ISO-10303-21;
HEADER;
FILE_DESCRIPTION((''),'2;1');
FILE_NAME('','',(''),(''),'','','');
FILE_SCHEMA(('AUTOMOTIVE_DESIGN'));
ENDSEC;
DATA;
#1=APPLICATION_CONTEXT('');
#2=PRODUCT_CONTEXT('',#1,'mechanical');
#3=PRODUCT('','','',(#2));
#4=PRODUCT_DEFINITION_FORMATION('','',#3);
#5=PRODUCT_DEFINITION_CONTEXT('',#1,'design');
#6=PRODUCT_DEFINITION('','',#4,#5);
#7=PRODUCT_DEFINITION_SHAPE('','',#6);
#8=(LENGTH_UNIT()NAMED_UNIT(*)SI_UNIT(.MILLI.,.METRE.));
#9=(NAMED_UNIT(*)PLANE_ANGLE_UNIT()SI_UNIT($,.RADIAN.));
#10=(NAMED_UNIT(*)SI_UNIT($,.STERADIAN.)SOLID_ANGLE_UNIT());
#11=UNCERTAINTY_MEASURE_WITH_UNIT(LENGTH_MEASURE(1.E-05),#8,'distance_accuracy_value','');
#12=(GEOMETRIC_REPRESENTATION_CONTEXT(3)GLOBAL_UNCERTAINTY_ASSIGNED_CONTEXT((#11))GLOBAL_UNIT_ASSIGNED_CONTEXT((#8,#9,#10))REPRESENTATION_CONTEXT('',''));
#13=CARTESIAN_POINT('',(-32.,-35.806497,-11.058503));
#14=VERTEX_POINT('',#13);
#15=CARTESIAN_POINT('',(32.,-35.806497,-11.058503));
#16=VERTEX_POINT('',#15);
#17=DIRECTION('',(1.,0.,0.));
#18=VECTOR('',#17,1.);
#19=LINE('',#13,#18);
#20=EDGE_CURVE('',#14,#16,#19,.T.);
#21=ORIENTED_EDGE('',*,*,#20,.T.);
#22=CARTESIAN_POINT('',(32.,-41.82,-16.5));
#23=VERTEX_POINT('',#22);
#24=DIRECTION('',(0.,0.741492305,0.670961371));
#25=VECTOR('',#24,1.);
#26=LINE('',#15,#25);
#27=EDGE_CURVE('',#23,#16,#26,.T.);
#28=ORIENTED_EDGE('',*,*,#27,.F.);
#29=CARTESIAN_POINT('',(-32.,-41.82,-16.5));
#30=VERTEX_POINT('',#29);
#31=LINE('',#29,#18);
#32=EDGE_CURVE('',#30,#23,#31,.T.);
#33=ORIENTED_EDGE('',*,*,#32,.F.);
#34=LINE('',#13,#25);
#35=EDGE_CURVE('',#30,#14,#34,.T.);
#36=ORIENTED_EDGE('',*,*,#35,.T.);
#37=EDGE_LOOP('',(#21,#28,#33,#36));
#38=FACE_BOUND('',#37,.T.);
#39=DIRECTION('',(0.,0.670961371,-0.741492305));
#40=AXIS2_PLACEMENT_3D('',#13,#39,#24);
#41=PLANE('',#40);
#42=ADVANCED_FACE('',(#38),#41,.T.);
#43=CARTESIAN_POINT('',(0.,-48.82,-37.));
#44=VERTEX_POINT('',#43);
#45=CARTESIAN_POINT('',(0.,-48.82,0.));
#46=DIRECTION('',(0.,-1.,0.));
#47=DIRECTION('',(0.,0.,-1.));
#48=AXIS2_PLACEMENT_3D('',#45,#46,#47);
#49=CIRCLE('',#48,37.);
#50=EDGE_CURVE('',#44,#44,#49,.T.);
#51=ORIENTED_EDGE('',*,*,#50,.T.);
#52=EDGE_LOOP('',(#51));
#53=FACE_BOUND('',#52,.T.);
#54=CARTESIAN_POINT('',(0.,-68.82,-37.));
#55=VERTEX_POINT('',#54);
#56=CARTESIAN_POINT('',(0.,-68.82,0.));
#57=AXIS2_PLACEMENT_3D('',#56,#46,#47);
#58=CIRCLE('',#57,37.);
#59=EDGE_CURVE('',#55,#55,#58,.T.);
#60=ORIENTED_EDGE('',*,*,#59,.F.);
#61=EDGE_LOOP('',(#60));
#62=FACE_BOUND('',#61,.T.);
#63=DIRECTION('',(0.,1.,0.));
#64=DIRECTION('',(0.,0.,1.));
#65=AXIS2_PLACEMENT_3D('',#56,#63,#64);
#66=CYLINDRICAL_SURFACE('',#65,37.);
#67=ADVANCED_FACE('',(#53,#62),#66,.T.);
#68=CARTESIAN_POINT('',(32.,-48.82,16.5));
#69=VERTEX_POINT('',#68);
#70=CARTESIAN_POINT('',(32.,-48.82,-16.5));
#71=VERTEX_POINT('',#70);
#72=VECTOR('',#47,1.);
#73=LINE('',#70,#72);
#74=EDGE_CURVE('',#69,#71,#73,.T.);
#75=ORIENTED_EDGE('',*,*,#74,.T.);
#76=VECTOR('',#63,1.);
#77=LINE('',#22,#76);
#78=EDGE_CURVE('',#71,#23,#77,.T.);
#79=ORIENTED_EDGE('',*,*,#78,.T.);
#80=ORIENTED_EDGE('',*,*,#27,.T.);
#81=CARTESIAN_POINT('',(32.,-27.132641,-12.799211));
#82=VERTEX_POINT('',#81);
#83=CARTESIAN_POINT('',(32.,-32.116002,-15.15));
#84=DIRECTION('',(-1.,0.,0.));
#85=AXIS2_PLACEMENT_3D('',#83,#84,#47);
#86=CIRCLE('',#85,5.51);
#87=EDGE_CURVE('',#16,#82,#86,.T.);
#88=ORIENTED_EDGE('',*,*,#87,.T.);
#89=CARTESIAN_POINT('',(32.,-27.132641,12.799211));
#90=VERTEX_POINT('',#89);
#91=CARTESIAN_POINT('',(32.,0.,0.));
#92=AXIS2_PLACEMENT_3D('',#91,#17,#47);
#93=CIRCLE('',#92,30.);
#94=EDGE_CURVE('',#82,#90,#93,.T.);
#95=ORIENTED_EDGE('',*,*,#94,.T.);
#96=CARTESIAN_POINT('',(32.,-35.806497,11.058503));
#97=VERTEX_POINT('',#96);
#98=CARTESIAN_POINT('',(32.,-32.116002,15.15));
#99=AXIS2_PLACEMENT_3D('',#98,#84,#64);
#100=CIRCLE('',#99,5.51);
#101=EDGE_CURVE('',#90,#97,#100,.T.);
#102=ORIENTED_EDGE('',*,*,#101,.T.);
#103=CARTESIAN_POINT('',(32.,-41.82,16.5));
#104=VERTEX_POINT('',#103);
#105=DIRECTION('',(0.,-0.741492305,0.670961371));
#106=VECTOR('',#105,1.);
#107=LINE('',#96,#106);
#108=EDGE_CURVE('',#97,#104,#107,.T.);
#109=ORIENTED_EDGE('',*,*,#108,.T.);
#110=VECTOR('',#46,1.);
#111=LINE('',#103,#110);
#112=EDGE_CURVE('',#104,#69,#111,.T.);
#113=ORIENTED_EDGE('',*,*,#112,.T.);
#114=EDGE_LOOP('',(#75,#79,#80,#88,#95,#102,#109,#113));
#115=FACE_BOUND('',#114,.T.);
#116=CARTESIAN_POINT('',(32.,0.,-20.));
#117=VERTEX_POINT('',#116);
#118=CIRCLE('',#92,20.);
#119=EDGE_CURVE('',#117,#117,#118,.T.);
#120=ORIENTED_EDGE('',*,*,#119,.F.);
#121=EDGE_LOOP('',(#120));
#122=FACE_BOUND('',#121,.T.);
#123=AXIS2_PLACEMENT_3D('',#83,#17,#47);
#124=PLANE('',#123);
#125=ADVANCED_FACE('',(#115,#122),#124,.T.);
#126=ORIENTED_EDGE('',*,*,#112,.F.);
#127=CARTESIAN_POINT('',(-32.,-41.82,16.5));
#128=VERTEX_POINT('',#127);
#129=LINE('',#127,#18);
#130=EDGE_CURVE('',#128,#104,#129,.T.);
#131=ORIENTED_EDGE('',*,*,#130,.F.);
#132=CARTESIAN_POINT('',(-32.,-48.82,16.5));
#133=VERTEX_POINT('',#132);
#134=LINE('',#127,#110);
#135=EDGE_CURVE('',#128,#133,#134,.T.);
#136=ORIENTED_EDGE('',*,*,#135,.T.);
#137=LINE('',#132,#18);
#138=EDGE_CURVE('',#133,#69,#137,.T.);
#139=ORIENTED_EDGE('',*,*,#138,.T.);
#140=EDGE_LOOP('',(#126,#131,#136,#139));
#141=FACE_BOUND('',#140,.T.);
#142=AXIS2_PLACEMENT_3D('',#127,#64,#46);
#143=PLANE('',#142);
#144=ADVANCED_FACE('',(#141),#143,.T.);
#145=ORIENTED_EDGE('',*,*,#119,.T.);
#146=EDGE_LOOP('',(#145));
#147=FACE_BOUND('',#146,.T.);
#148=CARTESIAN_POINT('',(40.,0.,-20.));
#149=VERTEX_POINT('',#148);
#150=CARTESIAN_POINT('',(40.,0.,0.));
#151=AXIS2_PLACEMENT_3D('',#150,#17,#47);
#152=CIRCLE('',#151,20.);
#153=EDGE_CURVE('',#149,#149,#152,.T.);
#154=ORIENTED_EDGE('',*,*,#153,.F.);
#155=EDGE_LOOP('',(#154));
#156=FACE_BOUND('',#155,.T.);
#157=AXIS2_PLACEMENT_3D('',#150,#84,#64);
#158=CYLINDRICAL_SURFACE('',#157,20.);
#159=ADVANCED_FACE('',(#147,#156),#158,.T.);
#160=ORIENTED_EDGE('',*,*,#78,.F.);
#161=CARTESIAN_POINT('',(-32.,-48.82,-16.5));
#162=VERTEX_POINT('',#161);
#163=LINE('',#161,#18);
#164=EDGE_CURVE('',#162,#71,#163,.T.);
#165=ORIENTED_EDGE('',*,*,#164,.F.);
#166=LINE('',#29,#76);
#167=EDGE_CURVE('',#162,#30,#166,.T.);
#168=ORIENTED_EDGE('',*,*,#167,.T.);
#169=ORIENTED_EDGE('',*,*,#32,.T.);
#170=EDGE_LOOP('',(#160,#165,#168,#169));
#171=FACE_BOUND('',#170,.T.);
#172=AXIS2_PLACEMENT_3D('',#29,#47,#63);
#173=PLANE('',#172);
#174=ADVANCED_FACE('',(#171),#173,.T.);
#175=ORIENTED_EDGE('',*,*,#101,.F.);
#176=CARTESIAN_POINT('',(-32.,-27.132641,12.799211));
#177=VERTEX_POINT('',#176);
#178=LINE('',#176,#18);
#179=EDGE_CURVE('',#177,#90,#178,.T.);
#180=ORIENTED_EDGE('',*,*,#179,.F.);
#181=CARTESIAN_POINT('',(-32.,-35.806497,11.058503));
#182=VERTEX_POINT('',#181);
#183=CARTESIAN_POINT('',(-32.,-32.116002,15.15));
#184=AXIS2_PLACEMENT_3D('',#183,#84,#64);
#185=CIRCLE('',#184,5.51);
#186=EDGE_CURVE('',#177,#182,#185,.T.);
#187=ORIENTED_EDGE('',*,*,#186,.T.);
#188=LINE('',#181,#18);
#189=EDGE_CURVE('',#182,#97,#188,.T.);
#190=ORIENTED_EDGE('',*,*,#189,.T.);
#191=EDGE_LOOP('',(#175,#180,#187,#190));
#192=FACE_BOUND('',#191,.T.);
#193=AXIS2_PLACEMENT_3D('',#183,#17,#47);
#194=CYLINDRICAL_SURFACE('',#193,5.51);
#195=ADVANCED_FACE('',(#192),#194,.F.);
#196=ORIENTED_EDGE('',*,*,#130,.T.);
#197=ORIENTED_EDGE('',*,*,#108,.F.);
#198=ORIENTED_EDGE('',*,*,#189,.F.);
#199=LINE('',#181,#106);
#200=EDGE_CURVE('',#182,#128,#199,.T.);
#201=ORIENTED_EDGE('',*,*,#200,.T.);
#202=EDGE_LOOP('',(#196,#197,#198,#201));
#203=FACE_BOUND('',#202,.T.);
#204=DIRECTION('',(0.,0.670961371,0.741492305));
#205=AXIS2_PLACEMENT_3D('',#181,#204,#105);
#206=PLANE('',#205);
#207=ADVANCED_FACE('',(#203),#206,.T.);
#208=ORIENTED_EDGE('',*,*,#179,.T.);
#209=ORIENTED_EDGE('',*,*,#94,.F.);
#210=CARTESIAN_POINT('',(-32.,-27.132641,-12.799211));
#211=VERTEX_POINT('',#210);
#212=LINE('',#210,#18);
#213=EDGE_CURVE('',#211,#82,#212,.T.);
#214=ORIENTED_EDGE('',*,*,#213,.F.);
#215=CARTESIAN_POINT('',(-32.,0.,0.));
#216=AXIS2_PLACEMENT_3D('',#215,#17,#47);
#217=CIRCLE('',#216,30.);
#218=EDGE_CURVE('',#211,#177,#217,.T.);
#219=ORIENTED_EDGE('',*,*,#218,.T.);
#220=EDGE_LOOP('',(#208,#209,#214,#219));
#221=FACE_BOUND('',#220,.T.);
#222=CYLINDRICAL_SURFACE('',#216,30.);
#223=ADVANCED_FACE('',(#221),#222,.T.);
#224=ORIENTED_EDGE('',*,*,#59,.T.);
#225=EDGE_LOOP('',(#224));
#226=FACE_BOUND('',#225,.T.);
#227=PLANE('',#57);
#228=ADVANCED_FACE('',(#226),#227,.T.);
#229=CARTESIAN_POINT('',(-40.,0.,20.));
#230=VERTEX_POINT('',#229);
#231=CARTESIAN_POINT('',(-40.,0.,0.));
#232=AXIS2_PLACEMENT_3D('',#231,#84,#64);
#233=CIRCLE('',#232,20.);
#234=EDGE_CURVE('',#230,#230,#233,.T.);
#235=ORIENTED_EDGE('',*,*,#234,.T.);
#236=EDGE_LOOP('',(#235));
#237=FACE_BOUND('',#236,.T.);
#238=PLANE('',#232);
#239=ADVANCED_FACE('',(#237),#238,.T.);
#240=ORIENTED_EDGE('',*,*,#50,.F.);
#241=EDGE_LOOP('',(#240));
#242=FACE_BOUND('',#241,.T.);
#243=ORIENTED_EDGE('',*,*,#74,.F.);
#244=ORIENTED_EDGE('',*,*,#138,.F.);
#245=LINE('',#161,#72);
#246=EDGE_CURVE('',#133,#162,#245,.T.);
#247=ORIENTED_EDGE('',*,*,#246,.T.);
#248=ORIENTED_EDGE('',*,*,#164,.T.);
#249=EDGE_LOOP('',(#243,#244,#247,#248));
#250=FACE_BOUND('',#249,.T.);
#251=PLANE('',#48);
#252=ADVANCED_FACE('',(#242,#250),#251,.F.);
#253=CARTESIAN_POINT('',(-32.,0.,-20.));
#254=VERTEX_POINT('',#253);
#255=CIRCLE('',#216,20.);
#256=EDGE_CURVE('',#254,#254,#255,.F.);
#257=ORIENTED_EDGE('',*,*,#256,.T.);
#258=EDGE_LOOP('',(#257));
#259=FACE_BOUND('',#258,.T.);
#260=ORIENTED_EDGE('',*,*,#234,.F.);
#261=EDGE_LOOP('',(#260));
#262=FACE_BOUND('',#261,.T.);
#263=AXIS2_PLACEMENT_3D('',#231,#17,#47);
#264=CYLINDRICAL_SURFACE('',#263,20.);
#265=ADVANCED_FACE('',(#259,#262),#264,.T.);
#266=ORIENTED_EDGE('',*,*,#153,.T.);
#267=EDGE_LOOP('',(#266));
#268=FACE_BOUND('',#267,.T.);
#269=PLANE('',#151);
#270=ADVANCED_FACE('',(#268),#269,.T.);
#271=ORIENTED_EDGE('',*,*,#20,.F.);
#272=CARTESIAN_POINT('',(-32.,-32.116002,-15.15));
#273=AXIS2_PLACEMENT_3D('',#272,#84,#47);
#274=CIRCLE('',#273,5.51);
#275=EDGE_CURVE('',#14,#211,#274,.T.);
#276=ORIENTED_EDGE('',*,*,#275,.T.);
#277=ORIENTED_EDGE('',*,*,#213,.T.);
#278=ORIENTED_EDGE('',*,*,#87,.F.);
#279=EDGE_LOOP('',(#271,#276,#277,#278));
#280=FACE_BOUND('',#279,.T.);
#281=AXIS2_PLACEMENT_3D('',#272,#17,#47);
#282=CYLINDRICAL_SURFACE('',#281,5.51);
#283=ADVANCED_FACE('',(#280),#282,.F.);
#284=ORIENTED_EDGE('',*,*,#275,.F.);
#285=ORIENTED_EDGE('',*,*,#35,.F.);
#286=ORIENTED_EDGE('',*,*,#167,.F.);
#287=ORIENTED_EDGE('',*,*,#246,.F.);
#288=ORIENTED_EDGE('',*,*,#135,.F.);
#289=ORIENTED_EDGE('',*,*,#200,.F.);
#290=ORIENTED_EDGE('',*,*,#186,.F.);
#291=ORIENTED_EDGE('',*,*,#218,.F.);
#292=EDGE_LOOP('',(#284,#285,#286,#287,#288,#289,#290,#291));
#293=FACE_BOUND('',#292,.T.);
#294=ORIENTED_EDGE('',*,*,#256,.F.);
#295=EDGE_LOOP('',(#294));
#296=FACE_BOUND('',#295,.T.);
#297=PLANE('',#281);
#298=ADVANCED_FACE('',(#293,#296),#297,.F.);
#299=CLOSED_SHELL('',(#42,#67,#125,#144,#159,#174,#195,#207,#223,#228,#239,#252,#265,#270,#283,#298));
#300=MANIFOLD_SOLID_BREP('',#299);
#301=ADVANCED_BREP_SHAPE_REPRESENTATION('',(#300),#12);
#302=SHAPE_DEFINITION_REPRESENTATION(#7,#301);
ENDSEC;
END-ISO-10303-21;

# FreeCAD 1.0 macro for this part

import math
import FreeCAD as App
import Part
import Sketcher

V = App.Vector
Q = App.Units.Quantity

doc = App.newDocument("Part")
body = doc.addObject("PartDesign::Body", "Body")

# Sketch on YZ plane
sketch1 = body.newObject("Sketcher::SketchObject", "Sketch")
sketch1.AttachmentSupport = (doc.getObject("YZ_Plane"), [""])
sketch1.MapMode = "FlatFace"
sketch1.addGeometry([
    Part.LineSegment(V(-36, 11, 0), V(-42, 16, 0)),  # 0
    Part.LineSegment(V(-42, 16, 0), V(-49, 16, 0)),  # 1
    Part.LineSegment(V(-49, 16, 0), V(-49, -16, 0)),  # 2
    Part.LineSegment(V(-49, -16, 0), V(-42, -16, 0)),  # 3
    Part.LineSegment(V(-42, -16, 0), V(-36, -11, 0)),  # 4
    Part.ArcOfCircle(Part.Circle(V(-32, -15, 0), V(0, 0, 1), 6), math.radians(25), math.radians(132)),  # 5
    Part.ArcOfCircle(Part.Circle(V(0, 0, 0), V(0, 0, 1), 30), math.radians(-155), math.radians(155)),  # 6
    Part.ArcOfCircle(Part.Circle(V(-32, 15, 0), V(0, 0, 1), 6), math.radians(-132), math.radians(-25)),  # 7
], False)
sketch1.addConstraint([
    Sketcher.Constraint("Coincident", 0, 2, 1, 1),
    Sketcher.Constraint("Coincident", 1, 2, 2, 1),
    Sketcher.Constraint("Coincident", 2, 2, 3, 1),
    Sketcher.Constraint("Coincident", 3, 2, 4, 1),
    Sketcher.Constraint("Coincident", 4, 2, 5, 2),
    Sketcher.Constraint("Tangent", 5, 1, 6, 1),
    Sketcher.Constraint("Tangent", 6, 2, 7, 2),
    Sketcher.Constraint("Coincident", 7, 1, 0, 1),
    Sketcher.Constraint("Horizontal", 1),
    Sketcher.Constraint("Vertical", 2),
    Sketcher.Constraint("Horizontal", 3),
    Sketcher.Constraint("Coincident", 6, 3, -1, 1),
    Sketcher.Constraint("Equal", 5, 7),
    Sketcher.Constraint("Symmetric", 0, 2, 3, 2, -1),
    Sketcher.Constraint("Symmetric", 4, 2, 7, 1, -1),
    Sketcher.Constraint("Radius", 6, Q("30 mm")),
    Sketcher.Constraint("DistanceX", 1, 2, 1, 1, Q("7 mm")),
    Sketcher.Constraint("DistanceY", 2, 2, 2, 1, Q("33 mm")),
    Sketcher.Constraint("Radius", 5, Q("5.51 mm")),
    Sketcher.Constraint("DistanceY", 5, 3, 7, 3, Q("30.3 mm")),
    Sketcher.Constraint("Distance", 0, Q("8.11 mm")),
    Sketcher.Constraint("DistanceX", 0, 2, -1, 1, Q("41.82 mm")),
])
pad1 = body.newObject("PartDesign::Pad", "Pad")
pad1.Profile = sketch1
pad1.Type = "TwoLengths"
pad1.Length = 32
pad1.Length2 = 32

# Sketch on YZ plane
sketch2 = body.newObject("Sketcher::SketchObject", "Sketch001")
sketch2.AttachmentSupport = (doc.getObject("YZ_Plane"), [""])
sketch2.MapMode = "FlatFace"
sketch2.AttachmentOffset = App.Placement(V(0, 0, 32), App.Rotation())
sketch2.addGeometry(Part.Circle(V(0, 0, 0), V(0, 0, 1), 20), False)
sketch2.addConstraint([
    Sketcher.Constraint("Coincident", 0, 3, -1, 1),
    Sketcher.Constraint("Diameter", 0, Q("40 mm")),
])
pad2 = body.newObject("PartDesign::Pad", "Pad001")
pad2.Profile = sketch2
pad2.Length = 8

# Sketch on YZ plane
sketch3 = body.newObject("Sketcher::SketchObject", "Sketch002")
sketch3.AttachmentSupport = (doc.getObject("YZ_Plane"), [""])
sketch3.MapMode = "FlatFace"
sketch3.AttachmentOffset = App.Placement(V(0, 0, -32), App.Rotation())
sketch3.addGeometry(Part.Circle(V(0, 0, 0), V(0, 0, 1), 20), False)
sketch3.addConstraint([
    Sketcher.Constraint("Coincident", 0, 3, -1, 1),
    Sketcher.Constraint("Diameter", 0, Q("40 mm")),
])
pad3 = body.newObject("PartDesign::Pad", "Pad002")
pad3.Profile = sketch3
pad3.Length = 8
pad3.Reversed = True

# Sketch on XZ plane
sketch4 = body.newObject("Sketcher::SketchObject", "Sketch003")
sketch4.AttachmentSupport = (doc.getObject("XZ_Plane"), [""])
sketch4.MapMode = "FlatFace"
sketch4.AttachmentOffset = App.Placement(V(0, 0, 48.82), App.Rotation())
sketch4.addGeometry(Part.Circle(V(0, 0, 0), V(0, 0, 1), 37), False)
sketch4.addConstraint([
    Sketcher.Constraint("Coincident", 0, 3, -1, 1),
    Sketcher.Constraint("Diameter", 0, Q("74 mm")),
])
pad4 = body.newObject("PartDesign::Pad", "Pad003")
pad4.Profile = sketch4
pad4.Length = 20

doc.recompute()
